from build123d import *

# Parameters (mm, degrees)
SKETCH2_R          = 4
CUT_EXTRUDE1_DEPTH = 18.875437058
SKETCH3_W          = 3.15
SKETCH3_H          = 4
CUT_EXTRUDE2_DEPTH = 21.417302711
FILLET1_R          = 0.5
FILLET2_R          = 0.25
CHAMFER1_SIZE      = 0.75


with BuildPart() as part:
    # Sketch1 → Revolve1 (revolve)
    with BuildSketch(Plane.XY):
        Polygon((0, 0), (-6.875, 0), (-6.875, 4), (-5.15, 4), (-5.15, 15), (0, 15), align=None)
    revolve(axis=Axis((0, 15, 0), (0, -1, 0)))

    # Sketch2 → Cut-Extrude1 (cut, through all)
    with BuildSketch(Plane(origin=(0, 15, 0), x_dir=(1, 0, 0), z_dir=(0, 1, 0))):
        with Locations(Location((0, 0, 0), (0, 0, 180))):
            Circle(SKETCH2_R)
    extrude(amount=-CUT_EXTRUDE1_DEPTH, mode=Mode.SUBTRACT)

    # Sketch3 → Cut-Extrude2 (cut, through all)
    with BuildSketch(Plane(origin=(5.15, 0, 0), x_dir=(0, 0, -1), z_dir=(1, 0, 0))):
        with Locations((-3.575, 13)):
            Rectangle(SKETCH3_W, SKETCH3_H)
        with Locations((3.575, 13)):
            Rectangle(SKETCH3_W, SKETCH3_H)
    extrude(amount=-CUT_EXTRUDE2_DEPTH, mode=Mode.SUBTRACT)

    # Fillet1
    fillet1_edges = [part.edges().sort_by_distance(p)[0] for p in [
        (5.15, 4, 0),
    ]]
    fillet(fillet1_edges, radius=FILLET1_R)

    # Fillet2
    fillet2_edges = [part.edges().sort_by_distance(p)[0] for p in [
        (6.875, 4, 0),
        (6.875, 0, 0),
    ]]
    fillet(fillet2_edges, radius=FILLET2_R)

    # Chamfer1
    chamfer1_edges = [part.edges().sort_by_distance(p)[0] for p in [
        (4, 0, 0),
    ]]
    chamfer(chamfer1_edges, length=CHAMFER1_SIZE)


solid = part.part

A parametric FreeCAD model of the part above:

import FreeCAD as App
import Part
import Sketcher

V = App.Vector
Q = App.Units.Quantity


def edges_at(feature, points):
    """Names of the edges that pass closest to the given points."""
    edges = feature.Shape.Edges
    near = lambda p: min(range(len(edges)), key=lambda i: edges[i].distToShape(Part.Vertex(*p))[0])
    return sorted({f"Edge{near(p) + 1}" for p in points})

doc = App.newDocument("Part")
params = doc.addObject("Spreadsheet::Sheet", "Params")
for row, (alias, value) in enumerate([
    ("sketch1_height", "15 mm"),
    ("sketch1_height2", "11 mm"),
    ("sketch1_width", "5.15 mm"),
    ("revolution_angle", "360 deg"),
    ("sketch2_diameter", "8 mm"),
    ("sketch3_width", "4 mm"),
    ("sketch3_height", "3.15 mm"),
    ("fillet_radius", "0.5 mm"),
    ("fillet2_radius", "0.25 mm"),
    ("chamfer_size", "0.75 mm"),
], start=1):
    params.set(f"A{row}", alias)
    params.set(f"B{row}", "=" + value)
    params.setAlias(f"B{row}", alias)

body = doc.addObject("PartDesign::Body", "Body")

sketch1 = body.newObject("Sketcher::SketchObject", "Sketch")
sketch1.AttachmentSupport = (doc.getObject("XY_Plane"), [""])
sketch1.MapMode = "FlatFace"
sketch1.addGeometry(Part.LineSegment(V(-6.9, 0, 0), V(0, 0, 0)), False)
sketch1.addGeometry(Part.LineSegment(V(0, 0, 0), V(0, 15, 0)), False)
sketch1.addGeometry(Part.LineSegment(V(0, 15, 0), V(-5.2, 15, 0)), False)
sketch1.addGeometry(Part.LineSegment(V(-5.2, 15, 0), V(-5.2, 4, 0)), False)
sketch1.addGeometry(Part.LineSegment(V(-5.2, 4, 0), V(-6.9, 4, 0)), False)
sketch1.addGeometry(Part.LineSegment(V(-6.9, 4, 0), V(-6.9, 0, 0)), False)
sketch1.addConstraint(Sketcher.Constraint("Coincident", 0, 2, 1, 1))
sketch1.addConstraint(Sketcher.Constraint("Coincident", 1, 2, 2, 1))
sketch1.addConstraint(Sketcher.Constraint("Coincident", 2, 2, 3, 1))
sketch1.addConstraint(Sketcher.Constraint("Coincident", 3, 2, 4, 1))
sketch1.addConstraint(Sketcher.Constraint("Coincident", 4, 2, 5, 1))
sketch1.addConstraint(Sketcher.Constraint("Coincident", 5, 2, 0, 1))
sketch1.addConstraint(Sketcher.Constraint("Horizontal", 0))
sketch1.addConstraint(Sketcher.Constraint("Vertical", 1))
sketch1.addConstraint(Sketcher.Constraint("Horizontal", 2))
sketch1.addConstraint(Sketcher.Constraint("Vertical", 3))
sketch1.addConstraint(Sketcher.Constraint("Horizontal", 4))
sketch1.addConstraint(Sketcher.Constraint("Vertical", 5))
sketch1.addConstraint(Sketcher.Constraint("Coincident", 0, 2, -1, 1))
sketch1.addConstraint(Sketcher.Constraint("DistanceY", 1, 1, 1, 2, Q("15 mm")))
sketch1.addConstraint(Sketcher.Constraint("DistanceY", 3, 2, 3, 1, Q("11 mm")))
sketch1.addConstraint(Sketcher.Constraint("DistanceX", 2, 2, 2, 1, Q("5.15 mm")))
sketch1.addConstraint(Sketcher.Constraint("DistanceX", 0, 1, 0, 2, Q("6.875 mm")))
sketch1.setExpression("Constraints[13]", "Params.sketch1_height")
sketch1.setExpression("Constraints[14]", "Params.sketch1_height2")
sketch1.setExpression("Constraints[15]", "Params.sketch1_width")
revolution = body.newObject("PartDesign::Revolution", "Revolution")
revolution.Profile = sketch1
revolution.ReferenceAxis = (sketch1, ["V_Axis"])
revolution.setExpression("Angle", "Params.revolution_angle")

sketch2 = body.newObject("Sketcher::SketchObject", "Sketch001")
sketch2.AttachmentSupport = (doc.getObject("XZ_Plane"), [""])
sketch2.MapMode = "FlatFace"
sketch2.AttachmentOffset = App.Placement(V(0, 0, -15), App.Rotation())
sketch2.addGeometry(Part.Circle(V(0, 0, 0), V(0, 0, 1), 4), False)
sketch2.addConstraint(Sketcher.Constraint("Coincident", 0, 3, -1, 1))
sketch2.addConstraint(Sketcher.Constraint("Diameter", 0, Q("8 mm")))
sketch2.setExpression("Constraints[1]", "Params.sketch2_diameter")
pocket1 = body.newObject("PartDesign::Pocket", "Pocket")
pocket1.Profile = sketch2
pocket1.Type = "ThroughAll"
pocket1.Reversed = True

sketch3 = body.newObject("Sketcher::SketchObject", "Sketch002")
sketch3.AttachmentSupport = (doc.getObject("YZ_Plane"), [""])
sketch3.MapMode = "FlatFace"
sketch3.AttachmentOffset = App.Placement(V(0, 0, 5.15), App.Rotation())
sketch3.addGeometry(Part.LineSegment(V(15, 5.2, 0), V(11, 5.2, 0)), False)
sketch3.addGeometry(Part.LineSegment(V(11, 5.2, 0), V(11, 2, 0)), False)
sketch3.addGeometry(Part.LineSegment(V(11, 2, 0), V(15, 2, 0)), False)
sketch3.addGeometry(Part.LineSegment(V(15, 2, 0), V(15, 5.2, 0)), False)
sketch3.addGeometry(Part.LineSegment(V(15, -2, 0), V(11, -2, 0)), False)
sketch3.addGeometry(Part.LineSegment(V(11, -2, 0), V(11, -5.2, 0)), False)
sketch3.addGeometry(Part.LineSegment(V(11, -5.2, 0), V(15, -5.2, 0)), False)
sketch3.addGeometry(Part.LineSegment(V(15, -5.2, 0), V(15, -2, 0)), False)
sketch3.addConstraint(Sketcher.Constraint("Coincident", 0, 2, 1, 1))
sketch3.addConstraint(Sketcher.Constraint("Coincident", 1, 2, 2, 1))
sketch3.addConstraint(Sketcher.Constraint("Coincident", 2, 2, 3, 1))
sketch3.addConstraint(Sketcher.Constraint("Coincident", 3, 2, 0, 1))
sketch3.addConstraint(Sketcher.Constraint("Coincident", 4, 2, 5, 1))
sketch3.addConstraint(Sketcher.Constraint("Coincident", 5, 2, 6, 1))
sketch3.addConstraint(Sketcher.Constraint("Coincident", 6, 2, 7, 1))
sketch3.addConstraint(Sketcher.Constraint("Coincident", 7, 2, 4, 1))
sketch3.addConstraint(Sketcher.Constraint("Horizontal", 0))
sketch3.addConstraint(Sketcher.Constraint("Vertical", 1))
sketch3.addConstraint(Sketcher.Constraint("Horizontal", 2))
sketch3.addConstraint(Sketcher.Constraint("Vertical", 3))
sketch3.addConstraint(Sketcher.Constraint("Horizontal", 4))
sketch3.addConstraint(Sketcher.Constraint("Vertical", 5))
sketch3.addConstraint(Sketcher.Constraint("Horizontal", 6))
sketch3.addConstraint(Sketcher.Constraint("Vertical", 7))
sketch3.addConstraint(Sketcher.Constraint("Symmetric", 1, 2, 4, 2, -1))
sketch3.addConstraint(Sketcher.Constraint("Symmetric", 3, 2, 6, 2, -1))
sketch3.addConstraint(Sketcher.Constraint("DistanceX", 0, 2, 0, 1, Q("4 mm")))
sketch3.addConstraint(Sketcher.Constraint("DistanceX", -1, 1, 0, 2, Q("11 mm")))
sketch3.addConstraint(Sketcher.Constraint("DistanceY", -1, 1, 1, 2, Q("2 mm")))
sketch3.addConstraint(Sketcher.Constraint("DistanceY", 1, 2, 1, 1, Q("3.15 mm")))
sketch3.setExpression("Constraints[18]", "Params.sketch3_width")
sketch3.setExpression("Constraints[21]", "Params.sketch3_height")
pocket2 = body.newObject("PartDesign::Pocket", "Pocket001")
pocket2.Profile = sketch3
pocket2.Type = "ThroughAll"
doc.recompute()

fillet = body.newObject("PartDesign::Fillet", "Fillet")
fillet.Base = (pocket2, edges_at(pocket2, [(5.15, 4, 0)]))
fillet.setExpression("Radius", "Params.fillet_radius")
doc.recompute()

fillet2 = body.newObject("PartDesign::Fillet", "Fillet001")
fillet2.Base = (fillet, edges_at(fillet, [(6.875, 4, 0), (6.875, 0, 0)]))
fillet2.setExpression("Radius", "Params.fillet2_radius")
doc.recompute()

chamfer = body.newObject("PartDesign::Chamfer", "Chamfer")
chamfer.Base = (fillet2, edges_at(fillet2, [(4, 0, 0)]))
chamfer.setExpression("Size", "Params.chamfer_size")

doc.recompute()
